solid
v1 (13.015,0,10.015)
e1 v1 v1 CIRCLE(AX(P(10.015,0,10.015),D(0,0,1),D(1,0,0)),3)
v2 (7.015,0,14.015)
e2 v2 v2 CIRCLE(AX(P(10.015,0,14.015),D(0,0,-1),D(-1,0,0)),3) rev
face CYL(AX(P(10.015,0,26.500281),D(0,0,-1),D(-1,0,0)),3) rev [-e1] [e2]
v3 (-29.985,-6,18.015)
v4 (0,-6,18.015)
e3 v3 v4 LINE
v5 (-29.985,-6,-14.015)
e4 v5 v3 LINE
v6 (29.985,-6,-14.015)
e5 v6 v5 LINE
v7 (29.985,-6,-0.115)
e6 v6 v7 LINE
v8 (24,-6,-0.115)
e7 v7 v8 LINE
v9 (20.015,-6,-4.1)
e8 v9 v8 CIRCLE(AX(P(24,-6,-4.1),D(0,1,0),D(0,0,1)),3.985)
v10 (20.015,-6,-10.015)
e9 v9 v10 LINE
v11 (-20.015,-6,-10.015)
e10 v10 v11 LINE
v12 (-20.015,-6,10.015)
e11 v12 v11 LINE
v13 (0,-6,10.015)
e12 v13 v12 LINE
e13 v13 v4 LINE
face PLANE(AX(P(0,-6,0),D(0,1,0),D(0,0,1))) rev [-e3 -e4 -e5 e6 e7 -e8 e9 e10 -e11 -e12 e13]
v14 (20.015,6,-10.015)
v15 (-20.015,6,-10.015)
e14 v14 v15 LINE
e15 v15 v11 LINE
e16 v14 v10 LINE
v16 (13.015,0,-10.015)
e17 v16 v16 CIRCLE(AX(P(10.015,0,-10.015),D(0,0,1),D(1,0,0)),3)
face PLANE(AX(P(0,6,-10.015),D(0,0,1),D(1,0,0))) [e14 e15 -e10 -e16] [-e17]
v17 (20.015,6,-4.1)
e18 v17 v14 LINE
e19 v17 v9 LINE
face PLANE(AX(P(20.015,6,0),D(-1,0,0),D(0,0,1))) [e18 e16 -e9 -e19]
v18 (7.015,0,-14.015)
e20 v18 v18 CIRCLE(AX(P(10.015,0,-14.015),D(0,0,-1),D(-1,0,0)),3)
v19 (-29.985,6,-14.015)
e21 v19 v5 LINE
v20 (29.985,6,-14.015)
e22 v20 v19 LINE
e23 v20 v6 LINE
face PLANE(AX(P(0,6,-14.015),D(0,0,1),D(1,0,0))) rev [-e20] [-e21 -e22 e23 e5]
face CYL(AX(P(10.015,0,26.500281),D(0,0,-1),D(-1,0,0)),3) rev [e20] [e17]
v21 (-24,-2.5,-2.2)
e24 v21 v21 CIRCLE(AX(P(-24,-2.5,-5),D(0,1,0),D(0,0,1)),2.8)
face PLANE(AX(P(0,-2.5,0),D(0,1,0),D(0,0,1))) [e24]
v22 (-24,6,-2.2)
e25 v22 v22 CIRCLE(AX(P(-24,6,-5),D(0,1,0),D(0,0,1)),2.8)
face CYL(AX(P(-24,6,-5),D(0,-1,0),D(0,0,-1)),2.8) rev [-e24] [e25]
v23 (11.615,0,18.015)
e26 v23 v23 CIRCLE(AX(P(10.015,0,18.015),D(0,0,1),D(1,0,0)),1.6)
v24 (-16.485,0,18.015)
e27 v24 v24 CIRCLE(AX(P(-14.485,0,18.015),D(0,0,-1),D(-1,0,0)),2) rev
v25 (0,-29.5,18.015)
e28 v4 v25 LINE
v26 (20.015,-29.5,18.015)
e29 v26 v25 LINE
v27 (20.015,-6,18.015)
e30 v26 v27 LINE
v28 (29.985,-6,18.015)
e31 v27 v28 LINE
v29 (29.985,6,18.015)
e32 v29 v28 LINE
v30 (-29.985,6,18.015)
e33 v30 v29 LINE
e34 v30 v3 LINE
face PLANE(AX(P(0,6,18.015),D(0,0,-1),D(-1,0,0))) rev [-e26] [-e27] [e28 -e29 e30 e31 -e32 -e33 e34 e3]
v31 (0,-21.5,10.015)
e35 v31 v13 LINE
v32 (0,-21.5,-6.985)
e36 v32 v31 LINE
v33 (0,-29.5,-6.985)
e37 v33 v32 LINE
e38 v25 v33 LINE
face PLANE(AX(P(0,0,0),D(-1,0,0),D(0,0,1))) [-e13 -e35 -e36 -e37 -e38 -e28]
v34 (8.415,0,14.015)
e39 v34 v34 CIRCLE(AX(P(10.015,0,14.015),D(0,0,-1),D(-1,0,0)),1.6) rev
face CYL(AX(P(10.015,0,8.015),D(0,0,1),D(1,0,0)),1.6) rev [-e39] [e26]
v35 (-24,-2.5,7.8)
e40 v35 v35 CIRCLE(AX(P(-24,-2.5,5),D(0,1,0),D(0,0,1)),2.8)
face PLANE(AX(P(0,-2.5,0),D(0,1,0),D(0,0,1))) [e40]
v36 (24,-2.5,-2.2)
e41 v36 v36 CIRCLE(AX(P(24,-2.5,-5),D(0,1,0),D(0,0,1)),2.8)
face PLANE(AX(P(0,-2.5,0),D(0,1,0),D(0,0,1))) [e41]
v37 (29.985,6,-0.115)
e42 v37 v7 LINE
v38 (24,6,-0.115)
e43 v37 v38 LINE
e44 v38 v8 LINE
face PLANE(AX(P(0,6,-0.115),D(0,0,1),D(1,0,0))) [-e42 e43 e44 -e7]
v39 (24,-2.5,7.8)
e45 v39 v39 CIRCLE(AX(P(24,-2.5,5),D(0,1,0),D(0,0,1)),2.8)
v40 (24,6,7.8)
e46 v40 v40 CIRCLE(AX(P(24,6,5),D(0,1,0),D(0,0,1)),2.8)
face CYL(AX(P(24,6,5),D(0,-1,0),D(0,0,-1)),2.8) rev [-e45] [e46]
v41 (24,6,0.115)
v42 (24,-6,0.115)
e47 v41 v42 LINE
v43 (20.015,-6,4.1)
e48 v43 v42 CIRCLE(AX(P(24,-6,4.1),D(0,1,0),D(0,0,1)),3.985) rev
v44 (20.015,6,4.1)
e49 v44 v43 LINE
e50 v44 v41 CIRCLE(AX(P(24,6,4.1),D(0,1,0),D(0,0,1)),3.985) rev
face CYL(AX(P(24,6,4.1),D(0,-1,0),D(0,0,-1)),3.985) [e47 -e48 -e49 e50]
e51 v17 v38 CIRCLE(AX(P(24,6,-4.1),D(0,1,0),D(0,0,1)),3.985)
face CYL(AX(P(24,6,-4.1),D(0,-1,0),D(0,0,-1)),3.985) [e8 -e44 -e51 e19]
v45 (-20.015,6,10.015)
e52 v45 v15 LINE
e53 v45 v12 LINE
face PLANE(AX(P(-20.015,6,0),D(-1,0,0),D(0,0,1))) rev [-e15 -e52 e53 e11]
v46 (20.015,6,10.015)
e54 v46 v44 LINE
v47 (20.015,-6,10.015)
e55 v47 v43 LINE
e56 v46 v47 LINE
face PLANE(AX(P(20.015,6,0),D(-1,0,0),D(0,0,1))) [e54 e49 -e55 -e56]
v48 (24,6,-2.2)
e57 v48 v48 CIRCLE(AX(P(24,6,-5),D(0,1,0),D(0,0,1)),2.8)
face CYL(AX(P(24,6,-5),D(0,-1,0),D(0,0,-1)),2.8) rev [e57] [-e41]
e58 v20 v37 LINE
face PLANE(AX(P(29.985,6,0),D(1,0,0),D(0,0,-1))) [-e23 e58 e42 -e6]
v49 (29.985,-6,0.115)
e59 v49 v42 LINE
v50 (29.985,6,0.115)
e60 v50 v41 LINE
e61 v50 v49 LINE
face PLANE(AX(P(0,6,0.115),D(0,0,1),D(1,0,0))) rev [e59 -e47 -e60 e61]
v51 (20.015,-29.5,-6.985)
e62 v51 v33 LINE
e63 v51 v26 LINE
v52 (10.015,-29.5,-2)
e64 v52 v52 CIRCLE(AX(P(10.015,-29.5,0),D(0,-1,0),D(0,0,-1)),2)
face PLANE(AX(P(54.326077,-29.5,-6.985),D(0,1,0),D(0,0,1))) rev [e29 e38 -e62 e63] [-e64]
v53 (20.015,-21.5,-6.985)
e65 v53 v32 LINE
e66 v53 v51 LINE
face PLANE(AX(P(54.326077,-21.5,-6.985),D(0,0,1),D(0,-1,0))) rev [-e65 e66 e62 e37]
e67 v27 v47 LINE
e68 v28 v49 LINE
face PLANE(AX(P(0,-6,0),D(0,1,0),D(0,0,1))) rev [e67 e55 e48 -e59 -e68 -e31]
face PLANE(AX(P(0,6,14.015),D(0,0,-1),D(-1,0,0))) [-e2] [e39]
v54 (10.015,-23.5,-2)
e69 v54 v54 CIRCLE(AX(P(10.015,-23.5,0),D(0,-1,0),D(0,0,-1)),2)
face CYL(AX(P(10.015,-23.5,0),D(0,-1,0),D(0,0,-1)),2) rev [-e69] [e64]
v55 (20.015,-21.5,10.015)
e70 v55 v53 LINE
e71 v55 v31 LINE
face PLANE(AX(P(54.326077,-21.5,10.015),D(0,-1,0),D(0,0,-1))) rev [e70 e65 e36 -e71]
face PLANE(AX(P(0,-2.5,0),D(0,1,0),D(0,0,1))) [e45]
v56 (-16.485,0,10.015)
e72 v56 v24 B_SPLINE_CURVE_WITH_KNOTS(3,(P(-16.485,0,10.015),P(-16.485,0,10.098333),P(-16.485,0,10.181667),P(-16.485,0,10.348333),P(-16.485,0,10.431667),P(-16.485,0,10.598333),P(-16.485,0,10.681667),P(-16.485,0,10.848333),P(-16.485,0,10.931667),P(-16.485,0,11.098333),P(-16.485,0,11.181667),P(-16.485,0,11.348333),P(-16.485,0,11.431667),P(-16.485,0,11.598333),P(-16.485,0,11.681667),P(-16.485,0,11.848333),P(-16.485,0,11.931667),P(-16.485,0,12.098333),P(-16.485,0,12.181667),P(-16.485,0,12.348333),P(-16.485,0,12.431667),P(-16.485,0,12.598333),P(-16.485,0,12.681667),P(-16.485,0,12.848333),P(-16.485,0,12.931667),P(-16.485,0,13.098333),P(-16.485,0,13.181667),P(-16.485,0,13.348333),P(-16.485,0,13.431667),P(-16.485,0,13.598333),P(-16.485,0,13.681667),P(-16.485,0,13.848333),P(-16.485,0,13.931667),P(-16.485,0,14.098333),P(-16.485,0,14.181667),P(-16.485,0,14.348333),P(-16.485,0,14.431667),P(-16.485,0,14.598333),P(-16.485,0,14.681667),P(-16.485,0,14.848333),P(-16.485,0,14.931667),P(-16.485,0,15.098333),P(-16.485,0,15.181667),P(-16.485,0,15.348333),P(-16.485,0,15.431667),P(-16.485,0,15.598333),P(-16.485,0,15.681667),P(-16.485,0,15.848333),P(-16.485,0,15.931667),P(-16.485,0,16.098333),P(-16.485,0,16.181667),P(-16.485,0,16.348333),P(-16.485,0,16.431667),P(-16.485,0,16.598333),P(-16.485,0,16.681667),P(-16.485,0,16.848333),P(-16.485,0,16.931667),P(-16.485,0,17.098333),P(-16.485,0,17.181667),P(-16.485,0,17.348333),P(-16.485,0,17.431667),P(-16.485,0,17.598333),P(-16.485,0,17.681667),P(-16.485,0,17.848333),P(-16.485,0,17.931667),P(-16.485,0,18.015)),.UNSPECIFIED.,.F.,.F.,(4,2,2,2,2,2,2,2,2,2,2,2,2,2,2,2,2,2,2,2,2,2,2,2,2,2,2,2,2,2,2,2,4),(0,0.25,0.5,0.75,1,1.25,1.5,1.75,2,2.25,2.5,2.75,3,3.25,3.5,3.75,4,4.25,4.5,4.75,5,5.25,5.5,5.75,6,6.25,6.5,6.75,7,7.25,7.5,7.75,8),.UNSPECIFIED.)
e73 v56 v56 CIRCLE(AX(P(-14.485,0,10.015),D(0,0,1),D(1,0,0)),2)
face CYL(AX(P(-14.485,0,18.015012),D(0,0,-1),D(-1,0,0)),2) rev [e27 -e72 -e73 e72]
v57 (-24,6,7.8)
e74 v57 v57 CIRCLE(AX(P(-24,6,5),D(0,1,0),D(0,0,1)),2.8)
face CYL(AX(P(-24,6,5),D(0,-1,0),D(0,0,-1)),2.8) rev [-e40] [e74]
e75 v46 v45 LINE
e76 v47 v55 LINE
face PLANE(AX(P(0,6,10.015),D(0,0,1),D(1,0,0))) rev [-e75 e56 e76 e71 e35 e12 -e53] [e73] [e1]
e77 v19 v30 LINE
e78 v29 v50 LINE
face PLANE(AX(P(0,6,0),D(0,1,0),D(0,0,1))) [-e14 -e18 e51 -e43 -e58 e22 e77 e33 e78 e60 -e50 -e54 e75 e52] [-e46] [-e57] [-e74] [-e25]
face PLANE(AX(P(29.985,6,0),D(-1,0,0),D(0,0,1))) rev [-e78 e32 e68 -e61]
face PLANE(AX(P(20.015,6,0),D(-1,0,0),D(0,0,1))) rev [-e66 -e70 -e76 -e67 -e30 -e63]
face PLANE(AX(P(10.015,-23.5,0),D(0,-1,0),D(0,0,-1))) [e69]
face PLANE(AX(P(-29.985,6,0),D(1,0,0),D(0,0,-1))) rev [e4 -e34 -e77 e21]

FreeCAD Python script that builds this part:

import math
import FreeCAD as App
import Part
import Sketcher

doc = App.newDocument("Part")
body = doc.addObject("PartDesign::Body", "Body")

# Sketch on XZ plane
sketch1 = body.newObject("Sketcher::SketchObject", "Sketch")
sketch1.AttachmentSupport = (doc.getObject("XZ_Plane"), [""])
sketch1.MapMode = "FlatFace"
sketch1.addGeometry(Part.ArcOfCircle(Part.Circle(App.Vector(24, 4.1, 0), App.Vector(0, 0, 1), 4), math.radians(180), math.radians(270)), False)
sketch1.addGeometry(Part.LineSegment(App.Vector(20, 4.1, 0), App.Vector(20, 10, 0)), False)
sketch1.addGeometry(Part.LineSegment(App.Vector(20, 10, 0), App.Vector(-20, 10, 0)), False)
sketch1.addGeometry(Part.LineSegment(App.Vector(-20, 10, 0), App.Vector(-20, -10, 0)), False)
sketch1.addGeometry(Part.LineSegment(App.Vector(-20, -10, 0), App.Vector(20, -10, 0)), False)
sketch1.addGeometry(Part.LineSegment(App.Vector(20, -10, 0), App.Vector(20, -4.1, 0)), False)
sketch1.addGeometry(Part.ArcOfCircle(Part.Circle(App.Vector(24, -4.1, 0), App.Vector(0, 0, 1), 4), math.radians(90), math.radians(180)), False)
sketch1.addGeometry(Part.LineSegment(App.Vector(24, -0.1, 0), App.Vector(30, -0.1, 0)), False)
sketch1.addGeometry(Part.LineSegment(App.Vector(30, -0.1, 0), App.Vector(30, -14, 0)), False)
sketch1.addGeometry(Part.LineSegment(App.Vector(30, -14, 0), App.Vector(-30, -14, 0)), False)
sketch1.addGeometry(Part.LineSegment(App.Vector(-30, -14, 0), App.Vector(-30, 18, 0)), False)
sketch1.addGeometry(Part.LineSegment(App.Vector(-30, 18, 0), App.Vector(30, 18, 0)), False)
sketch1.addGeometry(Part.LineSegment(App.Vector(30, 18, 0), App.Vector(30, 0.1, 0)), False)
sketch1.addGeometry(Part.LineSegment(App.Vector(30, 0.1, 0), App.Vector(24, 0.1, 0)), False)
sketch1.addGeometry(Part.Circle(App.Vector(-24, 5, 0), App.Vector(0, 0, 1), 2.8), False)
sketch1.addGeometry(Part.Circle(App.Vector(24, 5, 0), App.Vector(0, 0, 1), 2.8), False)
sketch1.addGeometry(Part.Circle(App.Vector(-24, -5, 0), App.Vector(0, 0, 1), 2.8), False)
sketch1.addGeometry(Part.Circle(App.Vector(24, -5, 0), App.Vector(0, 0, 1), 2.8), False)
sketch1.addConstraint(Sketcher.Constraint("Tangent", 0, 1, 1, 1))
sketch1.addConstraint(Sketcher.Constraint("Coincident", 1, 2, 2, 1))
sketch1.addConstraint(Sketcher.Constraint("Coincident", 2, 2, 3, 1))
sketch1.addConstraint(Sketcher.Constraint("Coincident", 3, 2, 4, 1))
sketch1.addConstraint(Sketcher.Constraint("Coincident", 4, 2, 5, 1))
sketch1.addConstraint(Sketcher.Constraint("Tangent", 5, 2, 6, 2))
sketch1.addConstraint(Sketcher.Constraint("Tangent", 6, 1, 7, 1))
sketch1.addConstraint(Sketcher.Constraint("Coincident", 7, 2, 8, 1))
sketch1.addConstraint(Sketcher.Constraint("Coincident", 8, 2, 9, 1))
sketch1.addConstraint(Sketcher.Constraint("Coincident", 9, 2, 10, 1))
sketch1.addConstraint(Sketcher.Constraint("Coincident", 10, 2, 11, 1))
sketch1.addConstraint(Sketcher.Constraint("Coincident", 11, 2, 12, 1))
sketch1.addConstraint(Sketcher.Constraint("Coincident", 12, 2, 13, 1))
sketch1.addConstraint(Sketcher.Constraint("Tangent", 13, 2, 0, 2))
sketch1.addConstraint(Sketcher.Constraint("Vertical", 1))
sketch1.addConstraint(Sketcher.Constraint("Horizontal", 2))
sketch1.addConstraint(Sketcher.Constraint("Vertical", 3))
sketch1.addConstraint(Sketcher.Constraint("Horizontal", 4))
sketch1.addConstraint(Sketcher.Constraint("Vertical", 5))
sketch1.addConstraint(Sketcher.Constraint("Horizontal", 7))
sketch1.addConstraint(Sketcher.Constraint("Vertical", 8))
sketch1.addConstraint(Sketcher.Constraint("Horizontal", 9))
sketch1.addConstraint(Sketcher.Constraint("Vertical", 10))
sketch1.addConstraint(Sketcher.Constraint("Horizontal", 11))
sketch1.addConstraint(Sketcher.Constraint("Vertical", 12))
sketch1.addConstraint(Sketcher.Constraint("Horizontal", 13))
sketch1.addConstraint(Sketcher.Constraint("Equal", 0, 6))
sketch1.addConstraint(Sketcher.Constraint("Equal", 14, 15))
sketch1.addConstraint(Sketcher.Constraint("Equal", 15, 16))
sketch1.addConstraint(Sketcher.Constraint("Equal", 16, 17))
sketch1.addConstraint(Sketcher.Constraint("Symmetric", 15, 3, 16, 3, -1, 1))
sketch1.addConstraint(Sketcher.Constraint("Symmetric", 14, 3, 17, 3, -1, 1))
sketch1.addConstraint(Sketcher.Constraint("Symmetric", 1, 2, 3, 2, -1, 1))
sketch1.addConstraint(Sketcher.Constraint("Symmetric", 14, 3, 15, 3, -2))
sketch1.addConstraint(Sketcher.Constraint("Symmetric", 0, 3, 6, 3, -1))
sketch1.addConstraint(Sketcher.Constraint("Vertical", 6, 3, 15, 3))
sketch1.addConstraint(Sketcher.Constraint("Vertical", 8, 2, 11, 2))
sketch1.addConstraint(Sketcher.Constraint("Diameter", 14, 5.6))
sketch1.addConstraint(Sketcher.Constraint("DistanceY", 8, 2, 8, 1, 13.9))
sketch1.addConstraint(Sketcher.Constraint("DistanceY", 12, 2, 12, 1, 17.9))
sketch1.addConstraint(Sketcher.Constraint("DistanceX", -1, 1, 0, 3, 24.0))
sketch1.addConstraint(Sketcher.Constraint("DistanceY", -1, 1, 14, 3, 5.0))
sketch1.addConstraint(Sketcher.Constraint("Radius", 0, 3.985))
sketch1.addConstraint(Sketcher.Constraint("DistanceY", 8, 2, 4, 2, 4.0))
sketch1.addConstraint(Sketcher.Constraint("DistanceX", 9, 2, 4, 2, 50.0))
sketch1.addConstraint(Sketcher.Constraint("DistanceX", 9, 2, 9, 1, 59.97))
sketch1.addConstraint(Sketcher.Constraint("DistanceY", 3, 2, 3, 1, 20.03))
pad1 = body.newObject("PartDesign::Pad", "Pad")
pad1.Profile = sketch1
pad1.Length = 12
pad1.Midplane = True

# Sketch on XZ plane
sketch2 = body.newObject("Sketcher::SketchObject", "Sketch001")
sketch2.AttachmentSupport = (doc.getObject("XZ_Plane"), [""])
sketch2.MapMode = "FlatFace"
sketch2.AttachmentOffset = App.Placement(App.Vector(0, 0, 6), App.Rotation())
sketch2.addGeometry(Part.Circle(App.Vector(24, -5, 0), App.Vector(0, 0, 1), 2.8), False)
sketch2.addGeometry(Part.Circle(App.Vector(24, 5, 0), App.Vector(0, 0, 1), 2.8), False)
sketch2.addGeometry(Part.Circle(App.Vector(-24, -5, 0), App.Vector(0, 0, 1), 2.8), False)
sketch2.addGeometry(Part.Circle(App.Vector(-24, 5, 0), App.Vector(0, 0, 1), 2.8), False)
sketch2.addConstraint(Sketcher.Constraint("Equal", 0, 1))
sketch2.addConstraint(Sketcher.Constraint("Equal", 1, 2))
sketch2.addConstraint(Sketcher.Constraint("Equal", 2, 3))
sketch2.addConstraint(Sketcher.Constraint("Symmetric", 1, 3, 2, 3, -1, 1))
sketch2.addConstraint(Sketcher.Constraint("Symmetric", 0, 3, 3, 3, -1, 1))
sketch2.addConstraint(Sketcher.Constraint("Symmetric", 0, 3, 2, 3, -2))
sketch2.addConstraint(Sketcher.Constraint("Diameter", 0, 5.6))
sketch2.addConstraint(Sketcher.Constraint("DistanceX", -1, 1, 0, 3, 24.0))
sketch2.addConstraint(Sketcher.Constraint("DistanceY", 0, 3, -1, 1, 5.0))
pad2 = body.newObject("PartDesign::Pad", "Pad001")
pad2.Profile = sketch2
pad2.Length = 3.5
pad2.Reversed = True

# Sketch on XY plane
sketch3 = body.newObject("Sketcher::SketchObject", "Sketch002")
sketch3.AttachmentSupport = (doc.getObject("XY_Plane"), [""])
sketch3.MapMode = "FlatFace"
sketch3.AttachmentOffset = App.Placement(App.Vector(0, 0, 18.015), App.Rotation())
sketch3.addGeometry(Part.Circle(App.Vector(10, 0, 0), App.Vector(0, 0, 1), 1.6), False)
sketch3.addConstraint(Sketcher.Constraint("PointOnObject", 0, 3, -1))
sketch3.addConstraint(Sketcher.Constraint("Diameter", 0, 3.2))
sketch3.addConstraint(Sketcher.Constraint("DistanceX", -1, 1, 0, 3, 10.015))
pocket1 = body.newObject("PartDesign::Pocket", "Pocket")
pocket1.Profile = sketch3
pocket1.Length = 10

# Sketch on XY plane
sketch4 = body.newObject("Sketcher::SketchObject", "Sketch003")
sketch4.AttachmentSupport = (doc.getObject("XY_Plane"), [""])
sketch4.MapMode = "FlatFace"
sketch4.AttachmentOffset = App.Placement(App.Vector(0, 0, -14.015), App.Rotation())
sketch4.addGeometry(Part.Circle(App.Vector(10, 0, 0), App.Vector(0, 0, 1), 3), False)
sketch4.addConstraint(Sketcher.Constraint("PointOnObject", 0, 3, -1))
sketch4.addConstraint(Sketcher.Constraint("Diameter", 0, 6.0))
sketch4.addConstraint(Sketcher.Constraint("DistanceX", -1, 1, 0, 3, 10.015))
pocket2 = body.newObject("PartDesign::Pocket", "Pocket001")
pocket2.Profile = sketch4
pocket2.Length = 28.03
pocket2.Reversed = True

# Sketch on YZ plane
sketch5 = body.newObject("Sketcher::SketchObject", "Sketch004")
sketch5.AttachmentSupport = (doc.getObject("YZ_Plane"), [""])
sketch5.MapMode = "FlatFace"
sketch5.addGeometry(Part.LineSegment(App.Vector(-6, 10, 0), App.Vector(-6, 18, 0)), False)
sketch5.addGeometry(Part.LineSegment(App.Vector(-6, 18, 0), App.Vector(-30, 18, 0)), False)
sketch5.addGeometry(Part.LineSegment(App.Vector(-30, 18, 0), App.Vector(-30, -7, 0)), False)
sketch5.addGeometry(Part.LineSegment(App.Vector(-30, -7, 0), App.Vector(-22, -7, 0)), False)
sketch5.addGeometry(Part.LineSegment(App.Vector(-22, -7, 0), App.Vector(-22, 10, 0)), False)
sketch5.addGeometry(Part.LineSegment(App.Vector(-22, 10, 0), App.Vector(-6, 10, 0)), False)
sketch5.addConstraint(Sketcher.Constraint("Coincident", 0, 2, 1, 1))
sketch5.addConstraint(Sketcher.Constraint("Coincident", 1, 2, 2, 1))
sketch5.addConstraint(Sketcher.Constraint("Coincident", 2, 2, 3, 1))
sketch5.addConstraint(Sketcher.Constraint("Coincident", 3, 2, 4, 1))
sketch5.addConstraint(Sketcher.Constraint("Coincident", 4, 2, 5, 1))
sketch5.addConstraint(Sketcher.Constraint("Coincident", 5, 2, 0, 1))
sketch5.addConstraint(Sketcher.Constraint("Vertical", 0))
sketch5.addConstraint(Sketcher.Constraint("Horizontal", 1))
sketch5.addConstraint(Sketcher.Constraint("Vertical", 2))
sketch5.addConstraint(Sketcher.Constraint("Horizontal", 3))
sketch5.addConstraint(Sketcher.Constraint("Vertical", 4))
sketch5.addConstraint(Sketcher.Constraint("Horizontal", 5))
sketch5.addConstraint(Sketcher.Constraint("Equal", 3, 0))
sketch5.addConstraint(Sketcher.Constraint("DistanceX", 3, 1, 3, 2, 8.0))
sketch5.addConstraint(Sketcher.Constraint("DistanceY", 2, 2, 2, 1, 25.0))
sketch5.addConstraint(Sketcher.Constraint("DistanceX", 1, 2, 1, 1, 23.5))
sketch5.addConstraint(Sketcher.Constraint("DistanceX", 0, 2, -1, 1, 6.0))
sketch5.addConstraint(Sketcher.Constraint("DistanceY", -1, 1, 0, 2, 18.015))
pad3 = body.newObject("PartDesign::Pad", "Pad002")
pad3.Profile = sketch5
pad3.Length = 20.015

# Sketch on XZ plane
sketch6 = body.newObject("Sketcher::SketchObject", "Sketch005")
sketch6.AttachmentSupport = (doc.getObject("XZ_Plane"), [""])
sketch6.MapMode = "FlatFace"
sketch6.AttachmentOffset = App.Placement(App.Vector(0, 0, 29.5), App.Rotation())
sketch6.addGeometry(Part.Circle(App.Vector(10, 0, 0), App.Vector(0, 0, 1), 2), False)
sketch6.addConstraint(Sketcher.Constraint("PointOnObject", 0, 3, -1))
sketch6.addConstraint(Sketcher.Constraint("Diameter", 0, 4.0))
sketch6.addConstraint(Sketcher.Constraint("DistanceX", -1, 1, 0, 3, 10.015))
pocket3 = body.newObject("PartDesign::Pocket", "Pocket002")
pocket3.Profile = sketch6
pocket3.Length = 6

# Sketch on XY plane
sketch7 = body.newObject("Sketcher::SketchObject", "Sketch006")
sketch7.AttachmentSupport = (doc.getObject("XY_Plane"), [""])
sketch7.MapMode = "FlatFace"
sketch7.AttachmentOffset = App.Placement(App.Vector(0, 0, 18.015), App.Rotation())
sketch7.addGeometry(Part.Circle(App.Vector(-14.5, 0, 0), App.Vector(0, 0, 1), 2), False)
sketch7.addConstraint(Sketcher.Constraint("PointOnObject", 0, 3, -1))
sketch7.addConstraint(Sketcher.Constraint("Diameter", 0, 4.0))
sketch7.addConstraint(Sketcher.Constraint("DistanceX", 0, 3, -1, 1, 14.485))
pocket4 = body.newObject("PartDesign::Pocket", "Pocket003")
pocket4.Profile = sketch7
pocket4.Type = "TwoLengths"
pocket4.Length = 53.870324
pocket4.Length2 = 8
pocket4.Reversed = True

doc.recompute()
